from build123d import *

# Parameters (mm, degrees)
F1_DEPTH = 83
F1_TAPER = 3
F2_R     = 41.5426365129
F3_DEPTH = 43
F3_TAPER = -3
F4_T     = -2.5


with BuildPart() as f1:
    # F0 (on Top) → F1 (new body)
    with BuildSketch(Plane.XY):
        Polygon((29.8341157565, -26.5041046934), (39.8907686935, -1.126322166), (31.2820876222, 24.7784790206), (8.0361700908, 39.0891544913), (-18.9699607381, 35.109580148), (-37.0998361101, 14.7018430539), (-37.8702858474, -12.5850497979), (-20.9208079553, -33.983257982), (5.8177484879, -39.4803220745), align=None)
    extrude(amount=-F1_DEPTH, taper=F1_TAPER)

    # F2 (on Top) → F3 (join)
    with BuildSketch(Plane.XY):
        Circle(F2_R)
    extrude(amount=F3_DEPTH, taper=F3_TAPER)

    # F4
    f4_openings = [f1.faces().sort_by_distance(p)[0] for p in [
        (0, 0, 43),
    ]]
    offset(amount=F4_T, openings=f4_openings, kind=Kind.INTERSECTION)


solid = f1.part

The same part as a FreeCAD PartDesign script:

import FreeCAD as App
import Part
import Sketcher
Q = App.Units.Quantity


def faces_at(feature, points):
    """Names of the faces that lie closest to the given points."""
    faces = feature.Shape.Faces
    near = lambda p: min(range(len(faces)), key=lambda i: faces[i].distToShape(Part.Vertex(*p))[0])
    return sorted({f"Face{near(p) + 1}" for p in points})


def add_polygon(sketch, points):
    """Adds a closed chain of lines whose ends are joined by coincident constraints."""
    first, n = sketch.GeometryCount, len(points)
    for a, b in zip(points, points[1:] + points[:1]):
        sketch.addGeometry(Part.LineSegment(App.Vector(*a, 0), App.Vector(*b, 0)), False)
    for i in range(n):
        sketch.addConstraint(Sketcher.Constraint("Coincident", first + i, 2, first + (i + 1) % n, 1))

doc = App.newDocument("Part")
body = doc.addObject("PartDesign::Body", "Body")

sketch1 = body.newObject("Sketcher::SketchObject", "Sketch")
sketch1.AttachmentSupport = (doc.getObject("XY_Plane"), [""])
sketch1.MapMode = "FlatFace"
add_polygon(sketch1, [(29.834116, -26.504105), (39.890769, -1.126322), (31.282088, 24.778479), (8.03617, 39.089154), (-18.969961, 35.10958), (-37.099836, 14.701843), (-37.870286, -12.58505), (-20.920808, -33.983258), (5.817748, -39.480322)])
sketch1.addConstraint(Sketcher.Constraint("DistanceY", 7, 2, 0, 2, Q("38.354 mm")))
sketch1.addConstraint(Sketcher.Constraint("DistanceY", 0, 2, 1, 2, Q("25.904801 mm")))
sketch1.addConstraint(Sketcher.Constraint("DistanceX", 2, 2, 0, 2, Q("31.854599 mm")))
sketch1.addConstraint(Sketcher.Constraint("DistanceY", 1, 2, 3, 2, Q("10.331101 mm")))
sketch1.addConstraint(Sketcher.Constraint("DistanceY", 6, 2, 4, 2, Q("48.685101 mm")))
sketch1.addConstraint(Sketcher.Constraint("DistanceX", -1, 1, 0, 2, Q("39.890769 mm")))
sketch1.addConstraint(Sketcher.Constraint("DistanceY", -1, 1, 1, 2, Q("24.778479 mm")))
sketch1.addConstraint(Sketcher.Constraint("DistanceX", 3, 2, -1, 1, Q("18.969961 mm")))
sketch1.addConstraint(Sketcher.Constraint("DistanceY", 5, 2, -1, 1, Q("12.58505 mm")))
sketch1.addConstraint(Sketcher.Constraint("DistanceX", -1, 1, 7, 2, Q("5.817748 mm")))
sketch1.addConstraint(Sketcher.Constraint("DistanceX", 1, 2, 0, 2, Q("8.608681 mm")))
sketch1.addConstraint(Sketcher.Constraint("DistanceY", 4, 2, 2, 2, Q("24.387311 mm")))
sketch1.addConstraint(Sketcher.Constraint("DistanceX", 5, 2, 4, 2, Q("0.77045 mm")))
sketch1.addConstraint(Sketcher.Constraint("DistanceY", 6, 2, 5, 2, Q("21.398208 mm")))
sketch1.addConstraint(Sketcher.Constraint("DistanceX", 4, 2, 6, 2, Q("16.179028 mm")))
sketch1.addConstraint(Sketcher.Constraint("DistanceX", 6, 2, 2, 2, Q("28.956978 mm")))
sketch1.addConstraint(Sketcher.Constraint("DistanceX", 8, 2, 1, 2, Q("1.447972 mm")))
sketch1.addConstraint(Sketcher.Constraint("DistanceY", 8, 2, 2, 2, Q("65.593259 mm")))
pad1 = body.newObject("PartDesign::Pad", "Pad")
pad1.Profile = sketch1
pad1.Length = 83
pad1.Reversed = True
pad1.TaperAngle = -3

sketch2 = body.newObject("Sketcher::SketchObject", "Sketch001")
sketch2.AttachmentSupport = (doc.getObject("XY_Plane"), [""])
sketch2.MapMode = "FlatFace"
sketch2.addGeometry(Part.Circle(App.Vector(0, 0, 0), App.Vector(0, 0, 1), 42), False)
sketch2.addConstraint(Sketcher.Constraint("Coincident", 0, 3, -1, 1))
sketch2.addConstraint(Sketcher.Constraint("Diameter", 0, Q("83.085273 mm")))
pad2 = body.newObject("PartDesign::Pad", "Pad001")
pad2.Profile = sketch2
pad2.Length = 43
pad2.TaperAngle = 3
doc.recompute()

thickness = body.newObject("PartDesign::Thickness", "Thickness")
thickness.Base = (pad2, faces_at(pad2, [(0, 0, 43)]))
thickness.Value = 2.5
thickness.Reversed = True
thickness.Join = "Intersection"

doc.recompute()
